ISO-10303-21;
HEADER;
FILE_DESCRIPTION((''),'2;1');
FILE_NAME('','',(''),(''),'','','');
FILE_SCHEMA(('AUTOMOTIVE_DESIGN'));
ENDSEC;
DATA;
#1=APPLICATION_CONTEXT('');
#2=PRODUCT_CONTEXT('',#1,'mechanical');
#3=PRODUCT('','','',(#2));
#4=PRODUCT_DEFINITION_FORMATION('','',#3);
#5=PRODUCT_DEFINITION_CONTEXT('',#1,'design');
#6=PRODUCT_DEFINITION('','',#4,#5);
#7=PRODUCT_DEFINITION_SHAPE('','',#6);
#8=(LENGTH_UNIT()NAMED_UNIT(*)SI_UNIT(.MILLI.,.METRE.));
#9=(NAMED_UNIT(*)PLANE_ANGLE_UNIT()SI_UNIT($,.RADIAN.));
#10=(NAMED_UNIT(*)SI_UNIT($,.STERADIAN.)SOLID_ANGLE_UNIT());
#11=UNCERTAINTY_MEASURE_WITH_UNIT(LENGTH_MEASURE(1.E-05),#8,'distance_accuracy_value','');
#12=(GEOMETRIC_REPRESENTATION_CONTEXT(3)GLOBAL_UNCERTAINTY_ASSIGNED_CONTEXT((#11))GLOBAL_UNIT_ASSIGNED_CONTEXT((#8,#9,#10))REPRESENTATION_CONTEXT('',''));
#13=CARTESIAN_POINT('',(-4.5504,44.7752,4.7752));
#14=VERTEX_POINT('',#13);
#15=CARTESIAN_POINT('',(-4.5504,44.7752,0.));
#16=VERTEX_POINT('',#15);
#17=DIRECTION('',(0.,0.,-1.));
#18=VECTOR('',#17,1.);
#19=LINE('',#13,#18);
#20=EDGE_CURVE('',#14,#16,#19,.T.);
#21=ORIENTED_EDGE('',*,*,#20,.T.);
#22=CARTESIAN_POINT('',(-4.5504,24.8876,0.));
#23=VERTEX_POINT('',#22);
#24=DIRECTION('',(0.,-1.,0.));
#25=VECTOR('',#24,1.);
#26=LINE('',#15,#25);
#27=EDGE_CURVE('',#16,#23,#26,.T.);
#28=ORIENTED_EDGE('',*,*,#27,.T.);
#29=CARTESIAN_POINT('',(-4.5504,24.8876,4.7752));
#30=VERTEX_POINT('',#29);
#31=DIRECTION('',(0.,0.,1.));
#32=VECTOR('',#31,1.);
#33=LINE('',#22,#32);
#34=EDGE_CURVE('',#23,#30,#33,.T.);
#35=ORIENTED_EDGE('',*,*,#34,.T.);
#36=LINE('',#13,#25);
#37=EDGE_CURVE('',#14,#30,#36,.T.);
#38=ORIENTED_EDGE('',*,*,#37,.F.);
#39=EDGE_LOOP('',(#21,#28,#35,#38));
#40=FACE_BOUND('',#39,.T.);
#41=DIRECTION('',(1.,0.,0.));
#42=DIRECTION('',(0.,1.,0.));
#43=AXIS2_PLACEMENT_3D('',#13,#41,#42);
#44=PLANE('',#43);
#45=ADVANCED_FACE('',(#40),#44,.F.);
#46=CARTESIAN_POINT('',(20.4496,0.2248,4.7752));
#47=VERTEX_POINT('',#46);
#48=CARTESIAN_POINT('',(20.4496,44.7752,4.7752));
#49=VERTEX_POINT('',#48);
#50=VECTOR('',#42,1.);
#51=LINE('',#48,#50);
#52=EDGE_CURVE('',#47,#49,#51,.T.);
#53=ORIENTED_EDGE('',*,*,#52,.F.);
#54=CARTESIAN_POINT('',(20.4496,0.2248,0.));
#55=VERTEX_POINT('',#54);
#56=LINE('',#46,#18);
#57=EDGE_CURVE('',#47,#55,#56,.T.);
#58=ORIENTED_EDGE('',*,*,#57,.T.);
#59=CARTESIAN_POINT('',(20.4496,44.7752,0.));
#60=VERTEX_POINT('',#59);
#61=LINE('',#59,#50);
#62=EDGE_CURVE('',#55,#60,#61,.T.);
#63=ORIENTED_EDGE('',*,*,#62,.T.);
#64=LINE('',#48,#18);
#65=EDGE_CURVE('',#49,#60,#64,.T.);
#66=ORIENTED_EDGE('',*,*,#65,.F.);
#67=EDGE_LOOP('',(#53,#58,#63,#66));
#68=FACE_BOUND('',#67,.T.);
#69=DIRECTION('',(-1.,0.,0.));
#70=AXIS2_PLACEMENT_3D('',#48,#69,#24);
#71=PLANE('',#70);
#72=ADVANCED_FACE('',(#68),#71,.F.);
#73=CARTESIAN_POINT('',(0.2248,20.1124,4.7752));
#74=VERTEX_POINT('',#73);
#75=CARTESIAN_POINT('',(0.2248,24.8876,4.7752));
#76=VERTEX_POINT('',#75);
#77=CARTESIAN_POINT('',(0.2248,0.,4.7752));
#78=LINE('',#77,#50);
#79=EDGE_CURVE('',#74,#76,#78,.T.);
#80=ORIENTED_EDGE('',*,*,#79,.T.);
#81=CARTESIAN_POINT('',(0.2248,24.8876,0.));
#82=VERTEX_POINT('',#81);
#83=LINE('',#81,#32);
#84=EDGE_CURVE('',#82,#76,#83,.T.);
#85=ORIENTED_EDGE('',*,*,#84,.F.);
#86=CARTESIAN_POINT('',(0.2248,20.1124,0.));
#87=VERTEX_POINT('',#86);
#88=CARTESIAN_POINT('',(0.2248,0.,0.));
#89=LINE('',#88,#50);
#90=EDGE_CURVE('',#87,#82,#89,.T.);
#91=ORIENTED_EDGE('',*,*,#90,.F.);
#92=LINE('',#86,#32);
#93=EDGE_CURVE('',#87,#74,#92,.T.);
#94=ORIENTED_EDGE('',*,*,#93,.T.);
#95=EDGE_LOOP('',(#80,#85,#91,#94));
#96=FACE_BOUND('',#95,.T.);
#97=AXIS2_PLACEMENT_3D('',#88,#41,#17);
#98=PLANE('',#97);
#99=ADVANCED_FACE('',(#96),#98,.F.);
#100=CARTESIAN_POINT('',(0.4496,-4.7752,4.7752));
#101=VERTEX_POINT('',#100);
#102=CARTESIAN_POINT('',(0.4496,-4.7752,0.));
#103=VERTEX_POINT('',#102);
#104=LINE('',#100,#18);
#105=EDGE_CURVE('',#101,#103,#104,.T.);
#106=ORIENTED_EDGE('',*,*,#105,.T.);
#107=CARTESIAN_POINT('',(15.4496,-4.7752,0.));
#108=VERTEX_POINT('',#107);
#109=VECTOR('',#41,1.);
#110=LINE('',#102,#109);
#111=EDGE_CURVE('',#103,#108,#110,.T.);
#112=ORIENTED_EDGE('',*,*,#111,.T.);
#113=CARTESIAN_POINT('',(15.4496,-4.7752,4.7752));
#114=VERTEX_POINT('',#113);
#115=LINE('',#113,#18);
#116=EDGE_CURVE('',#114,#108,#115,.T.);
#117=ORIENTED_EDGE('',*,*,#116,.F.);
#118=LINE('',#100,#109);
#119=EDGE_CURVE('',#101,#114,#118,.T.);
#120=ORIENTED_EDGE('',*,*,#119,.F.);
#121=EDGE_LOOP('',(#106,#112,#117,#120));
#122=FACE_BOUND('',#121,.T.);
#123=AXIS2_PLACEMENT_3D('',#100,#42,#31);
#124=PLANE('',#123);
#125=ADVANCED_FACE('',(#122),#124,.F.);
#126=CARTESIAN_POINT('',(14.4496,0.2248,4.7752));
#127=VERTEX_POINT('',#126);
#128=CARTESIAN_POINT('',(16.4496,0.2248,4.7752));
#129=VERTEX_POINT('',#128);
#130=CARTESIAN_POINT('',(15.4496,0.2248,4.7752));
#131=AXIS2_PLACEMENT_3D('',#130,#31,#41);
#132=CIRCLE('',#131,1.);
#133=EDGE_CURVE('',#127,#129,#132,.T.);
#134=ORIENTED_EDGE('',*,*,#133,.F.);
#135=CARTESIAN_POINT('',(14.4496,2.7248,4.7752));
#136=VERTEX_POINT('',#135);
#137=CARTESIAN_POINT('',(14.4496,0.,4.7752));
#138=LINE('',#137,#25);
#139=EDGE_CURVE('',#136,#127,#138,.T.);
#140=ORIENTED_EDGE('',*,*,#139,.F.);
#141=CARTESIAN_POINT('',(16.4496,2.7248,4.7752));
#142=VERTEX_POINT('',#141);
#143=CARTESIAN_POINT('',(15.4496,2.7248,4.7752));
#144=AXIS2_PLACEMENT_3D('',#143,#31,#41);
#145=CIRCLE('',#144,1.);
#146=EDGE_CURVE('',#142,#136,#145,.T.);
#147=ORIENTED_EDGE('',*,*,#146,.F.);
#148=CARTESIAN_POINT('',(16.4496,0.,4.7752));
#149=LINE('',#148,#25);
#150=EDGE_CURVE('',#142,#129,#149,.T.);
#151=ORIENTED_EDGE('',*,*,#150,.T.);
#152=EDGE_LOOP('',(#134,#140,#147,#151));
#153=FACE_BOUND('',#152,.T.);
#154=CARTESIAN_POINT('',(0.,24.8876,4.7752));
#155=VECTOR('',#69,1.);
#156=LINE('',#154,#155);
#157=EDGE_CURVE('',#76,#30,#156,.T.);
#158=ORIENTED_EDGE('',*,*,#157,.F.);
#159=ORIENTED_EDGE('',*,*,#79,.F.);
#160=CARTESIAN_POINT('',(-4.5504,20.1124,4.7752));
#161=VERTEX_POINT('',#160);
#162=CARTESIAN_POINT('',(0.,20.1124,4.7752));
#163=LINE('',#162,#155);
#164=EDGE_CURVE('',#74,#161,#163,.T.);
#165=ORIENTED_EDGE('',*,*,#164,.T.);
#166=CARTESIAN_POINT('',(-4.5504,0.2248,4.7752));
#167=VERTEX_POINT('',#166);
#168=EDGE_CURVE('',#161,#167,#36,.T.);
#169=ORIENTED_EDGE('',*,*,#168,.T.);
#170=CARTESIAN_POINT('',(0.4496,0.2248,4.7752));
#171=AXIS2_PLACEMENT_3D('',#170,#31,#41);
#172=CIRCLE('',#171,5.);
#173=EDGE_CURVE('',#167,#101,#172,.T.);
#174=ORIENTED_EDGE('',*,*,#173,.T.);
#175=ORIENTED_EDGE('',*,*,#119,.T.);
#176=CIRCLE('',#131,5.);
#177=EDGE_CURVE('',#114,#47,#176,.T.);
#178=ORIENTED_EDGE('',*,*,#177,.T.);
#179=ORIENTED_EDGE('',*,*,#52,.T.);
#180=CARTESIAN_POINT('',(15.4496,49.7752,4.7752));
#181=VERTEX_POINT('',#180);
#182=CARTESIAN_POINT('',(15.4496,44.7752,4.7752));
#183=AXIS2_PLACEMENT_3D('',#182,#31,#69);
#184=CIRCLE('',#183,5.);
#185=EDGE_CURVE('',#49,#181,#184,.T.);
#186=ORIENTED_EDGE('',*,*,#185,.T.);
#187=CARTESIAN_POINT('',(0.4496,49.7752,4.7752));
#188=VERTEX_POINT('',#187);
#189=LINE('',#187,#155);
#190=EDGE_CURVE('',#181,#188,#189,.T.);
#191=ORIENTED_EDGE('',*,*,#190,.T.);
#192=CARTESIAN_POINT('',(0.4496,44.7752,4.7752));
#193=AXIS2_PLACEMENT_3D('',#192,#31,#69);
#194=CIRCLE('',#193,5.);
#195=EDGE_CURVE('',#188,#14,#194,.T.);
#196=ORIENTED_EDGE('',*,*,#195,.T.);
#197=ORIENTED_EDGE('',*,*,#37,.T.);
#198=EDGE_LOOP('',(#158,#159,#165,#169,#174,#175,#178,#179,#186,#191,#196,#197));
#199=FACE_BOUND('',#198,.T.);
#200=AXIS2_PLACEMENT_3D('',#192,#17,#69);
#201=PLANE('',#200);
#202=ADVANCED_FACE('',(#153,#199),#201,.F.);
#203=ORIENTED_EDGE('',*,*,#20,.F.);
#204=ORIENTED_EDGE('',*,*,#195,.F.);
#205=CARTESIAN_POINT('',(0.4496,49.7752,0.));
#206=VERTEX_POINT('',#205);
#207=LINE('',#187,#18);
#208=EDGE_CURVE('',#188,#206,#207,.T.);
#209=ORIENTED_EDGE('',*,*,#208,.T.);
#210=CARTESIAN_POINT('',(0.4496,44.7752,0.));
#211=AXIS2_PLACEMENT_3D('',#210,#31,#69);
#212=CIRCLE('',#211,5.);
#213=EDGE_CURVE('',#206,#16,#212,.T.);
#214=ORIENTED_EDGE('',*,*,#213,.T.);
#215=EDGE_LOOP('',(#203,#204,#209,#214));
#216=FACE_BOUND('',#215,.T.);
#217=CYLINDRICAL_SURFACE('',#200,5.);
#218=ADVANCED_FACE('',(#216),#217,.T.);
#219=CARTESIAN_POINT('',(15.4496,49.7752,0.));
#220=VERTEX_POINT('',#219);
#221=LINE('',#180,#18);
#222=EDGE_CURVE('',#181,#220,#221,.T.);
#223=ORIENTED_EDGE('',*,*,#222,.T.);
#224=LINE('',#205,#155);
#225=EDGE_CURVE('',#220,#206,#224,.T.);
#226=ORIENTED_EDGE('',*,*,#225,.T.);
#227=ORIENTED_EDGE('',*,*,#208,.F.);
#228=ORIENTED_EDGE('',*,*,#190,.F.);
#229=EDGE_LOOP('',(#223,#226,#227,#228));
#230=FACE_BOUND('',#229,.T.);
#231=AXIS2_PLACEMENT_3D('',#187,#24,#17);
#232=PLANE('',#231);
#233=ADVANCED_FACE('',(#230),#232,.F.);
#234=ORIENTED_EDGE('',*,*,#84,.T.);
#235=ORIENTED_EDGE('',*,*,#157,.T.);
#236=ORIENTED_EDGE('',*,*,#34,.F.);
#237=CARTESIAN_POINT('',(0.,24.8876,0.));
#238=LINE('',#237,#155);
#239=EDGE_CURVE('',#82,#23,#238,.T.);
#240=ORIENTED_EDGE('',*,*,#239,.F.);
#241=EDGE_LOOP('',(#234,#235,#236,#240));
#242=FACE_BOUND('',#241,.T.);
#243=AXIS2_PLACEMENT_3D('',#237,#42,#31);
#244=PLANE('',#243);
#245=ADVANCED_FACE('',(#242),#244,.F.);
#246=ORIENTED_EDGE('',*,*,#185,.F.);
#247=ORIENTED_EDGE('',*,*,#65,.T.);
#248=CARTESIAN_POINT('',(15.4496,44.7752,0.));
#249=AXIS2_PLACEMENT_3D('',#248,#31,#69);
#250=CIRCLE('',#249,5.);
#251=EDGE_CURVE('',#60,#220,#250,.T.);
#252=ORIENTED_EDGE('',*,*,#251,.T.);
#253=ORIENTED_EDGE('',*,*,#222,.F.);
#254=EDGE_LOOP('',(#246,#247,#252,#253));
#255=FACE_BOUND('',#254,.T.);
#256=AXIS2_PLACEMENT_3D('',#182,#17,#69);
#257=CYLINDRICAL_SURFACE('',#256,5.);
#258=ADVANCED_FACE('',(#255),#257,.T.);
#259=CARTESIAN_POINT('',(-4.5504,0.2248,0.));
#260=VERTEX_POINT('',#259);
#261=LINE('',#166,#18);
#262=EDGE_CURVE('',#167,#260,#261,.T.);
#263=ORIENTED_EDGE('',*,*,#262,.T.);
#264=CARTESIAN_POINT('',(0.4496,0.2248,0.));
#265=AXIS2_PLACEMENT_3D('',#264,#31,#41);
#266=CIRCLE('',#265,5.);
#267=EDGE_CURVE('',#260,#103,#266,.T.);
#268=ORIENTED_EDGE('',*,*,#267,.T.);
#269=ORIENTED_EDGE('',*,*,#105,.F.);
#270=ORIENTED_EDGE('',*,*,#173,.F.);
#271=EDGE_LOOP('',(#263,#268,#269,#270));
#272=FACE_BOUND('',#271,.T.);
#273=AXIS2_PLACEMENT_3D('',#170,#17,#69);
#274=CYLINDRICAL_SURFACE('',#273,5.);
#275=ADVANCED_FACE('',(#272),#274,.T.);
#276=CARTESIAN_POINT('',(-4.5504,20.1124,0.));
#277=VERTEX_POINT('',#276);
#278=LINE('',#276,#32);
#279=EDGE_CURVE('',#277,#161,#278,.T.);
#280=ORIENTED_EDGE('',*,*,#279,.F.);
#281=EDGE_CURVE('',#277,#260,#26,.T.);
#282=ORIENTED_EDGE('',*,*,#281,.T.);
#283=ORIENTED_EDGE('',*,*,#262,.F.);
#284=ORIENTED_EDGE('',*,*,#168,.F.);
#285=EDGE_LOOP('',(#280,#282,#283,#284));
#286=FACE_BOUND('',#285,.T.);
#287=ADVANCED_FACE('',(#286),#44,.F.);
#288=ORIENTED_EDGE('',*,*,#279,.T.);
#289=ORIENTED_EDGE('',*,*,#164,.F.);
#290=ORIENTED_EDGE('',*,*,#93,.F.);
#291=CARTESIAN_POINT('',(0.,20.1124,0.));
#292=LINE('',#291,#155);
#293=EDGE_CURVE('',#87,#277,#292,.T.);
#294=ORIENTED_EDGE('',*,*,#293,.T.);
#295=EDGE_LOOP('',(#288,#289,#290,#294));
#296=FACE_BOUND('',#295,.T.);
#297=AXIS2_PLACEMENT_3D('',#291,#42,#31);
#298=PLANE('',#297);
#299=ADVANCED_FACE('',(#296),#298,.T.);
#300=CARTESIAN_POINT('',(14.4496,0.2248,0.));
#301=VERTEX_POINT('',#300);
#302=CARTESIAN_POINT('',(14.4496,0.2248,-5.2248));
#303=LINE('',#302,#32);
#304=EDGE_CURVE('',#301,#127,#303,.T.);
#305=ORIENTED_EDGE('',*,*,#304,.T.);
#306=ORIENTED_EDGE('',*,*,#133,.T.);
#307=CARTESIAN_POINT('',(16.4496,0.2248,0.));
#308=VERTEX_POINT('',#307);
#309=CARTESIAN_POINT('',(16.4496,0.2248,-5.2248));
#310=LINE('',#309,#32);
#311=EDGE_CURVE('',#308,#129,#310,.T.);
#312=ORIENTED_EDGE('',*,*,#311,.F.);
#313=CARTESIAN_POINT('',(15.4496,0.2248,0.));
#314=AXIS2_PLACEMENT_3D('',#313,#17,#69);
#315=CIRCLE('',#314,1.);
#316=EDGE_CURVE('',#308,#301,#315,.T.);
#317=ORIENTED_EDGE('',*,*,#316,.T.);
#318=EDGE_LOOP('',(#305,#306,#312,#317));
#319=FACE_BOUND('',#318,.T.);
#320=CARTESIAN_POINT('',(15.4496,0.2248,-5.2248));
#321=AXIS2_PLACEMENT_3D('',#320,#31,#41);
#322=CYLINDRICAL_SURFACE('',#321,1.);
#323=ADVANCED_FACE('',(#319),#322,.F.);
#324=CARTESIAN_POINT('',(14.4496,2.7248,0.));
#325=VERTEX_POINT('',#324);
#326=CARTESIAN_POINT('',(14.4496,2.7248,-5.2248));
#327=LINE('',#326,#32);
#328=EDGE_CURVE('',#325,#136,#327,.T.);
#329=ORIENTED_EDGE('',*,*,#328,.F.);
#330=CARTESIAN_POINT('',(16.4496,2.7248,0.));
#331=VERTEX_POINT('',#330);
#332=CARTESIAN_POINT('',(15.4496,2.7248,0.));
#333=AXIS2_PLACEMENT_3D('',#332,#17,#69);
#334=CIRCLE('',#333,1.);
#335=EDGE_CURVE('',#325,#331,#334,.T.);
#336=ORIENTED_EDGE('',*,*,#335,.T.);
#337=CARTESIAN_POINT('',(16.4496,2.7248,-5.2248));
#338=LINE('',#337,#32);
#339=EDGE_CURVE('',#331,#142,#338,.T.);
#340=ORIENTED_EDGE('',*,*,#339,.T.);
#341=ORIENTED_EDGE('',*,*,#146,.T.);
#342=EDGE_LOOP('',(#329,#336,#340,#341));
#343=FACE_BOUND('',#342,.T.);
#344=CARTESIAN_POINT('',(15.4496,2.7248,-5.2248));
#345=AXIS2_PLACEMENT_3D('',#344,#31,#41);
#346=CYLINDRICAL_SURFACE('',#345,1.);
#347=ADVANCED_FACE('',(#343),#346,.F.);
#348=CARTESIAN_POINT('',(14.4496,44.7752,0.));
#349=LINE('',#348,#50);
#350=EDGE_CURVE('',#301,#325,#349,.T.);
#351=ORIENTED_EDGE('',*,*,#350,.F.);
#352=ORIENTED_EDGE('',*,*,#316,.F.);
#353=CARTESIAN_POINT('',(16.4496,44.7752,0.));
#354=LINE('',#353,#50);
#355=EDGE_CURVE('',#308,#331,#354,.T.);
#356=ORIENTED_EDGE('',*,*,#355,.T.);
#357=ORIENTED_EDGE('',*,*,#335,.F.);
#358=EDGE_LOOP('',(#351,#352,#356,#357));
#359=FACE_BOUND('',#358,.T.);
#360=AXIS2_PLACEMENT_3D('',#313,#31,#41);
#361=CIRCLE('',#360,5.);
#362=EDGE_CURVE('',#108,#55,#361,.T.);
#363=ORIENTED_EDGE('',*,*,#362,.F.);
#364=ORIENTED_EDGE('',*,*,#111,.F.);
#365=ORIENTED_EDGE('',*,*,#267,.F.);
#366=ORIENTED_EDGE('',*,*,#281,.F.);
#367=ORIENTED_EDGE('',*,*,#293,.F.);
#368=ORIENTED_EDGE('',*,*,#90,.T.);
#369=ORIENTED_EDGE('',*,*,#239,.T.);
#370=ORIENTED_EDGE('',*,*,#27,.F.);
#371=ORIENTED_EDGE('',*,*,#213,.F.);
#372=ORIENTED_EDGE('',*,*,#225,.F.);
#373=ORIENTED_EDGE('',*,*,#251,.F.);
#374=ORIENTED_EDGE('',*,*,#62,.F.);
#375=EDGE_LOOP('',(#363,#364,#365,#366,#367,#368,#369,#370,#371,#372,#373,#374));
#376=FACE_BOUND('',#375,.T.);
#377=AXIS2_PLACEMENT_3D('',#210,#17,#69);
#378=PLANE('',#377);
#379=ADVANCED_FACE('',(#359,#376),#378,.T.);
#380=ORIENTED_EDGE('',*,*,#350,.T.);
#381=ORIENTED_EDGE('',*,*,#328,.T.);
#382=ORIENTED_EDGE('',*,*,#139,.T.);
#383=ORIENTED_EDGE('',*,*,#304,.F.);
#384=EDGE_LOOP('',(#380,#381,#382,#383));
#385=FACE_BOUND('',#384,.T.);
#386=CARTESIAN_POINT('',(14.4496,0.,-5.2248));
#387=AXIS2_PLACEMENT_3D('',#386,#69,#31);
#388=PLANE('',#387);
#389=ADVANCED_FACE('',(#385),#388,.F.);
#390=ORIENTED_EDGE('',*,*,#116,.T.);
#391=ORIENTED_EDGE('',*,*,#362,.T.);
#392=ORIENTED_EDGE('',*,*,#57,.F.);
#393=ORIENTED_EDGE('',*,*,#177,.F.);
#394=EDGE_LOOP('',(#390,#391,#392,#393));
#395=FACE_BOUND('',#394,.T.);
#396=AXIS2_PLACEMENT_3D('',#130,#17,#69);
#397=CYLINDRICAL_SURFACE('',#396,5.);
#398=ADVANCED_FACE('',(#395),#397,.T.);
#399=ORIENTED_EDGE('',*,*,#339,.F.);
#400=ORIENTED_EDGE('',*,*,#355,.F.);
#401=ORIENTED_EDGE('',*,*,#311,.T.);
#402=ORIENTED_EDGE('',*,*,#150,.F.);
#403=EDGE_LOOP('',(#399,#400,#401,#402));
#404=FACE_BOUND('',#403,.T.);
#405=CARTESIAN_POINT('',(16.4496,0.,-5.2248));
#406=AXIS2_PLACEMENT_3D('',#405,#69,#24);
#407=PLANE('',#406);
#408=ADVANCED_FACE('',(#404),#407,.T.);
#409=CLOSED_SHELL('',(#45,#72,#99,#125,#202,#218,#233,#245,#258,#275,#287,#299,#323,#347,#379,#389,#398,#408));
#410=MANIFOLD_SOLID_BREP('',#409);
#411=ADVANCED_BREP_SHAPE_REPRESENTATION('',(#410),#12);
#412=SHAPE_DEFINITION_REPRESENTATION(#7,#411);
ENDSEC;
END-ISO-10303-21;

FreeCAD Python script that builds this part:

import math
import FreeCAD as App
import Part
import Sketcher
from FreeCAD import Vector


def add_polygon(sketch, points):
    """Adds a closed chain of lines whose ends are joined by coincident constraints."""
    first, n = sketch.GeometryCount, len(points)
    for a, b in zip(points, points[1:] + points[:1]):
        sketch.addGeometry(Part.LineSegment(App.Vector(*a, 0), App.Vector(*b, 0)), False)
    for i in range(n):
        sketch.addConstraint(Sketcher.Constraint("Coincident", first + i, 2, first + (i + 1) % n, 1))

doc = App.newDocument("Part")
body = doc.addObject("PartDesign::Body", "Body")

sketch1 = doc.addObject("Sketcher::SketchObject", "Sketch")
body.addObject(sketch1)
sketch1.AttachmentSupport = (doc.XY_Plane, [""])
sketch1.MapMode = "FlatFace"
sketch1.addGeometry(Part.LineSegment(Vector(-4.5504, 44.7752, 0), Vector(-4.5504, 0.2248, 0)), False)
sketch1.addGeometry(Part.ArcOfCircle(Part.Circle(Vector(0.4496, 0.2248, 0), Vector(0, 0, 1), 5), math.radians(180), math.radians(270)), False)
sketch1.addGeometry(Part.LineSegment(Vector(0.4496, -4.7752, 0), Vector(15.4496, -4.7752, 0)), False)
sketch1.addGeometry(Part.ArcOfCircle(Part.Circle(Vector(15.4496, 0.2248, 0), Vector(0, 0, 1), 5), math.radians(-90), math.radians(0)), False)
sketch1.addGeometry(Part.LineSegment(Vector(20.4496, 0.2248, 0), Vector(20.4496, 44.7752, 0)), False)
sketch1.addGeometry(Part.ArcOfCircle(Part.Circle(Vector(15.4496, 44.7752, 0), Vector(0, 0, 1), 5), math.radians(0), math.radians(90)), False)
sketch1.addGeometry(Part.LineSegment(Vector(15.4496, 49.7752, 0), Vector(0.4496, 49.7752, 0)), False)
sketch1.addGeometry(Part.ArcOfCircle(Part.Circle(Vector(0.4496, 44.7752, 0), Vector(0, 0, 1), 5), math.radians(90), math.radians(180)), False)
sketch1.addConstraint(Sketcher.Constraint("Tangent", 0, 2, 1, 1))
sketch1.addConstraint(Sketcher.Constraint("Tangent", 1, 2, 2, 1))
sketch1.addConstraint(Sketcher.Constraint("Tangent", 2, 2, 3, 1))
sketch1.addConstraint(Sketcher.Constraint("Tangent", 3, 2, 4, 1))
sketch1.addConstraint(Sketcher.Constraint("Tangent", 4, 2, 5, 1))
sketch1.addConstraint(Sketcher.Constraint("Tangent", 5, 2, 6, 1))
sketch1.addConstraint(Sketcher.Constraint("Tangent", 6, 2, 7, 1))
sketch1.addConstraint(Sketcher.Constraint("Tangent", 7, 2, 0, 1))
sketch1.addConstraint(Sketcher.Constraint("Vertical", 0))
sketch1.addConstraint(Sketcher.Constraint("Horizontal", 2))
sketch1.addConstraint(Sketcher.Constraint("Vertical", 4))
sketch1.addConstraint(Sketcher.Constraint("Horizontal", 6))
sketch1.addConstraint(Sketcher.Constraint("Equal", 1, 3))
sketch1.addConstraint(Sketcher.Constraint("Equal", 3, 5))
sketch1.addConstraint(Sketcher.Constraint("Equal", 5, 7))
sketch1.addConstraint(Sketcher.Constraint("Radius", 1, 5.0))
sketch1.addConstraint(Sketcher.Constraint("DistanceX", 2, 1, 2, 2, 15.0))
sketch1.addConstraint(Sketcher.Constraint("DistanceY", 0, 2, 0, 1, 44.5504))
sketch1.addConstraint(Sketcher.Constraint("DistanceX", -1, 1, 1, 3, 0.4496))
sketch1.addConstraint(Sketcher.Constraint("DistanceY", -1, 1, 1, 3, 0.2248))
pad1 = doc.addObject("PartDesign::Pad", "Pad")
body.addObject(pad1)
pad1.Profile = sketch1
pad1.Length = 4.7752

sketch2 = doc.addObject("Sketcher::SketchObject", "Sketch001")
body.addObject(sketch2)
sketch2.AttachmentSupport = (doc.XY_Plane, [""])
sketch2.MapMode = "FlatFace"
sketch2.AttachmentOffset = App.Placement(Vector(0, 0, 4.7752), App.Rotation())
add_polygon(sketch2, [(-4.5504, 24.8876), (-4.5504, 20.1124), (0.2248, 20.1124), (0.2248, 24.8876)])
sketch2.addConstraint(Sketcher.Constraint("Vertical", 0))
sketch2.addConstraint(Sketcher.Constraint("Horizontal", 1))
sketch2.addConstraint(Sketcher.Constraint("Vertical", 2))
sketch2.addConstraint(Sketcher.Constraint("Horizontal", 3))
sketch2.addConstraint(Sketcher.Constraint("Equal", 3, 0))
sketch2.addConstraint(Sketcher.Constraint("DistanceX", 1, 1, 1, 2, 4.7752))
sketch2.addConstraint(Sketcher.Constraint("DistanceX", 0, 2, -1, 1, 4.5504))
sketch2.addConstraint(Sketcher.Constraint("DistanceY", -1, 1, 0, 2, 20.1124))
pocket1 = doc.addObject("PartDesign::Pocket", "Pocket")
body.addObject(pocket1)
pocket1.Profile = sketch2
pocket1.Type = "ThroughAll"

sketch3 = doc.addObject("Sketcher::SketchObject", "Sketch002")
body.addObject(sketch3)
sketch3.AttachmentSupport = (doc.XY_Plane, [""])
sketch3.MapMode = "FlatFace"
sketch3.AttachmentOffset = App.Placement(Vector(0, 0, 4.7752), App.Rotation())
sketch3.addGeometry(Part.LineSegment(Vector(16.4496, 0.2248, 0), Vector(16.4496, 2.7248, 0)), False)
sketch3.addGeometry(Part.ArcOfCircle(Part.Circle(Vector(15.4496, 2.7248, 0), Vector(0, 0, 1), 1), math.radians(0), math.radians(180)), False)
sketch3.addGeometry(Part.LineSegment(Vector(14.4496, 2.7248, 0), Vector(14.4496, 0.2248, 0)), False)
sketch3.addGeometry(Part.ArcOfCircle(Part.Circle(Vector(15.4496, 0.2248, 0), Vector(0, 0, 1), 1), math.radians(180), math.radians(360)), False)
sketch3.addConstraint(Sketcher.Constraint("Tangent", 0, 2, 1, 1))
sketch3.addConstraint(Sketcher.Constraint("Tangent", 1, 2, 2, 1))
sketch3.addConstraint(Sketcher.Constraint("Tangent", 2, 2, 3, 1))
sketch3.addConstraint(Sketcher.Constraint("Tangent", 3, 2, 0, 1))
sketch3.addConstraint(Sketcher.Constraint("Vertical", 0))
sketch3.addConstraint(Sketcher.Constraint("Vertical", 2))
sketch3.addConstraint(Sketcher.Constraint("Radius", 1, 1.0))
sketch3.addConstraint(Sketcher.Constraint("DistanceY", 0, 1, 0, 2, 2.5))
sketch3.addConstraint(Sketcher.Constraint("DistanceX", -1, 1, 1, 3, 15.4496))
sketch3.addConstraint(Sketcher.Constraint("DistanceY", -1, 1, 1, 3, 2.7248))
pocket2 = doc.addObject("PartDesign::Pocket", "Pocket001")
body.addObject(pocket2)
pocket2.Profile = sketch3
pocket2.Length = 10

doc.recompute()
